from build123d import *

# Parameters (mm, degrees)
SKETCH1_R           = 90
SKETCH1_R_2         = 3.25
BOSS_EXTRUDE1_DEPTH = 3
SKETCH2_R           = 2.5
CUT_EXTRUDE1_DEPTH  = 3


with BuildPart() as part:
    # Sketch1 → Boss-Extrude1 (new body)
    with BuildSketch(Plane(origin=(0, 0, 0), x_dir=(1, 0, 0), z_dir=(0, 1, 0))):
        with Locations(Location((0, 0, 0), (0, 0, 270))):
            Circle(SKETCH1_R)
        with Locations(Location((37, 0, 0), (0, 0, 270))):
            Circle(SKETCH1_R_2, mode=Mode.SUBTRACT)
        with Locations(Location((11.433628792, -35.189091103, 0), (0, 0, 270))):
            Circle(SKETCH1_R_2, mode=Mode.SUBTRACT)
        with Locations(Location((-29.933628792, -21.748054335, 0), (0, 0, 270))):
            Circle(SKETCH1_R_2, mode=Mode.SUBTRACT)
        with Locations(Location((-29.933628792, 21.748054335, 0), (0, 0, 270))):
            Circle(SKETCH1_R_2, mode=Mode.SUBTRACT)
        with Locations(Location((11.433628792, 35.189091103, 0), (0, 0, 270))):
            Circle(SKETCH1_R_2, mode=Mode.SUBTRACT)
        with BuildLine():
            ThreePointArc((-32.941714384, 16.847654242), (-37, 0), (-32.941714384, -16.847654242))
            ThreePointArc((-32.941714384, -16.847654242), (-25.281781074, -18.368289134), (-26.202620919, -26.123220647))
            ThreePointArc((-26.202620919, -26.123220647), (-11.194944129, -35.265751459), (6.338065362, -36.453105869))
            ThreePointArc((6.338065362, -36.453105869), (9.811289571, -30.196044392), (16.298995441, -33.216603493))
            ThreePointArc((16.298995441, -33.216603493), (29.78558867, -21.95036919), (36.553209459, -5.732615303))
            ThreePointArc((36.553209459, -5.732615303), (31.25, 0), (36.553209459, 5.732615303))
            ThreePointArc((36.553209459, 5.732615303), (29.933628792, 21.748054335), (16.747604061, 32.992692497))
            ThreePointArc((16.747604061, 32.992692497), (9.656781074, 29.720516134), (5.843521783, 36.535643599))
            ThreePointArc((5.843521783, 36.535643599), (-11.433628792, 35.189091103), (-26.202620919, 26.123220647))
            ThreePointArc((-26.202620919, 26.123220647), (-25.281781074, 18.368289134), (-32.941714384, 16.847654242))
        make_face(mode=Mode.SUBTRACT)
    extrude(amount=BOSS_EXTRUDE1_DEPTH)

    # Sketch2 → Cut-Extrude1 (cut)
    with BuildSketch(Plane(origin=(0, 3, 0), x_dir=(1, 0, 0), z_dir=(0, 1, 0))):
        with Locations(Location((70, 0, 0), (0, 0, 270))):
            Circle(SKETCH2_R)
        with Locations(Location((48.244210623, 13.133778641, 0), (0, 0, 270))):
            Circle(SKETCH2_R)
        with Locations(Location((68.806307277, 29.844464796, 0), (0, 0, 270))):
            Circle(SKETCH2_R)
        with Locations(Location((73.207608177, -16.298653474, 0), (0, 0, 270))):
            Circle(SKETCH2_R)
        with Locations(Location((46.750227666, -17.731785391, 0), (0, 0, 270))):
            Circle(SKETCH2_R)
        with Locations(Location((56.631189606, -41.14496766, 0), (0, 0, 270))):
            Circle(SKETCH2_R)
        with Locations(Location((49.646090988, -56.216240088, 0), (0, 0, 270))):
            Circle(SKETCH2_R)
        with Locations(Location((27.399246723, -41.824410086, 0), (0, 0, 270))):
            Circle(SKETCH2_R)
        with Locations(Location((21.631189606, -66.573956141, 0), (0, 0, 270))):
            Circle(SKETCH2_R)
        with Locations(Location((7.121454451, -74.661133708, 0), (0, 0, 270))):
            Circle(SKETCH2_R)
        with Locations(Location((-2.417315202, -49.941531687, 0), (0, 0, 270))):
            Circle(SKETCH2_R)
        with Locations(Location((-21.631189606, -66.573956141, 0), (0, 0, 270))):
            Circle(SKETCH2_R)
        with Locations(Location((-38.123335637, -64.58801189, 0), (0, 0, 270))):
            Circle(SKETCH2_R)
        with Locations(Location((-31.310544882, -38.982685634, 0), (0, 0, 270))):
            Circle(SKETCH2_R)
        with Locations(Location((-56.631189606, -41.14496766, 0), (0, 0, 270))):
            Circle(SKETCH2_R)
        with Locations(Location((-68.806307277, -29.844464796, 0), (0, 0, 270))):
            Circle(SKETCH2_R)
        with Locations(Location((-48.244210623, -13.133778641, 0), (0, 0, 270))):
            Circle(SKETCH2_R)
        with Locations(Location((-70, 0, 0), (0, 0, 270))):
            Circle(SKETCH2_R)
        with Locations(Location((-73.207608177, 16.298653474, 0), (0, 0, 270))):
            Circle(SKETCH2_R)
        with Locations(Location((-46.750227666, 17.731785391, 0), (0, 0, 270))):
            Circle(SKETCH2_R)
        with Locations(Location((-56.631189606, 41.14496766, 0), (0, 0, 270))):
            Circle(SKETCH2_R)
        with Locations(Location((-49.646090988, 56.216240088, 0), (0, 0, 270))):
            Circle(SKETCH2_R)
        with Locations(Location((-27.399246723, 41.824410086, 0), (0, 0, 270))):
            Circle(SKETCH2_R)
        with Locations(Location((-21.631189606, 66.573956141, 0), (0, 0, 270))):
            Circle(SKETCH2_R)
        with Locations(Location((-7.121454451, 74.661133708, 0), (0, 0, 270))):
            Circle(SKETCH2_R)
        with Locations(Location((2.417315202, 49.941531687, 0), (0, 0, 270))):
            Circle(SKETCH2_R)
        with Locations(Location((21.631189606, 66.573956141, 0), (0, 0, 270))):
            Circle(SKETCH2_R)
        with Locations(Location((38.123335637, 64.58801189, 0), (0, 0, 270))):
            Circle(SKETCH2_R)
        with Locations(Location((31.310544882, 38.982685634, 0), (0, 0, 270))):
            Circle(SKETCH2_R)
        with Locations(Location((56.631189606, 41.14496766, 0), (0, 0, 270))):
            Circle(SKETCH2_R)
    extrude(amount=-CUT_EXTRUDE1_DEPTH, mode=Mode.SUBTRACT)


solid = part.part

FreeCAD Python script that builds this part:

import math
import FreeCAD as App
import Part
import Sketcher

V = App.Vector

doc = App.newDocument("Part")
params = doc.addObject("Spreadsheet::Sheet", "Params")
for row, (alias, value) in enumerate([
    ("sketch1_diameter", "180 mm"),
    ("sketch1_radius", "37 mm"),
    ("sketch1_diameter2", "6.5 mm"),
    ("sketch1_radius2", "5.75 mm"),
    ("sketch1_radius3", "5.25 mm"),
    ("pad1_length", "3 mm"),
    ("sketch2_diameter", "5 mm"),
    ("pocket1_length", "3 mm"),
], start=1):
    params.set(f"A{row}", alias)
    params.set(f"B{row}", "=" + value)
    params.setAlias(f"B{row}", alias)

body = doc.addObject("PartDesign::Body", "Body")

# Sketch on XZ plane
sketch1 = body.newObject("Sketcher::SketchObject", "Sketch")
sketch1.AttachmentSupport = (doc.getObject("XZ_Plane"), [""])
sketch1.MapMode = "FlatFace"
sketch1.addGeometry(Part.Circle(V(0, 0, 0), V(0, 0, 1), 90), False)
sketch1.addGeometry(Part.Circle(V(-29.9, -21.7, 0), V(0, 0, 1), 3.2), False)
sketch1.addGeometry(Part.Circle(V(-29.9, 21.7, 0), V(0, 0, 1), 3.2), False)
sketch1.addGeometry(Part.ArcOfCircle(Part.Circle(V(0, 0, 0), V(0, 0, 1), 37), math.radians(153), math.radians(207)), False)
sketch1.addGeometry(Part.ArcOfCircle(Part.Circle(V(-29.9, -21.7, 0), V(0, 0, 1), 5.8), math.radians(-50), math.radians(122)), False)
sketch1.addGeometry(Part.ArcOfCircle(Part.Circle(V(0, 0, 0), V(0, 0, 1), 37), math.radians(-135), math.radians(-81)), False)
sketch1.addGeometry(Part.ArcOfCircle(Part.Circle(V(11.4, -35.2, 0), V(0, 0, 1), 5.8), math.radians(22), math.radians(194)), False)
sketch1.addGeometry(Part.ArcOfCircle(Part.Circle(V(0, 0, 0), V(0, 0, 1), 37), math.radians(-63), math.radians(-9)), False)
sketch1.addGeometry(Part.ArcOfCircle(Part.Circle(V(37, 0, 0), V(0, 0, 1), 5.8), math.radians(94), math.radians(266)), False)
sketch1.addGeometry(Part.ArcOfCircle(Part.Circle(V(0, 0, 0), V(0, 0, 1), 37), math.radians(9), math.radians(64)), False)
sketch1.addGeometry(Part.ArcOfCircle(Part.Circle(V(11.4, 35.2, 0), V(0, 0, 1), 5.2), math.radians(166), math.radians(338)), False)
sketch1.addGeometry(Part.ArcOfCircle(Part.Circle(V(0, 0, 0), V(0, 0, 1), 37), math.radians(80), math.radians(135)), False)
sketch1.addGeometry(Part.ArcOfCircle(Part.Circle(V(-29.9, 21.7, 0), V(0, 0, 1), 5.8), math.radians(-122), math.radians(50)), False)
sketch1.addGeometry(Part.Circle(V(11.4, -35.2, 0), V(0, 0, 1), 3.2), False)
sketch1.addGeometry(Part.Circle(V(37, 0, 0), V(0, 0, 1), 3.2), False)
sketch1.addGeometry(Part.Circle(V(11.4, 35.2, 0), V(0, 0, 1), 3.2), False)
sketch1.addConstraint(Sketcher.Constraint("Coincident", 3, 2, 4, 2))
sketch1.addConstraint(Sketcher.Constraint("Coincident", 4, 1, 5, 1))
sketch1.addConstraint(Sketcher.Constraint("Coincident", 5, 2, 6, 2))
sketch1.addConstraint(Sketcher.Constraint("Coincident", 6, 1, 7, 1))
sketch1.addConstraint(Sketcher.Constraint("Coincident", 7, 2, 8, 2))
sketch1.addConstraint(Sketcher.Constraint("Coincident", 8, 1, 9, 1))
sketch1.addConstraint(Sketcher.Constraint("Coincident", 9, 2, 10, 2))
sketch1.addConstraint(Sketcher.Constraint("Coincident", 10, 1, 11, 1))
sketch1.addConstraint(Sketcher.Constraint("Coincident", 11, 2, 12, 2))
sketch1.addConstraint(Sketcher.Constraint("Coincident", 12, 1, 3, 1))
sketch1.addConstraint(Sketcher.Constraint("Coincident", 0, 3, -1, 1))
sketch1.addConstraint(Sketcher.Constraint("Coincident", 3, 3, -1, 1))
sketch1.addConstraint(Sketcher.Constraint("Coincident", 5, 3, -1, 1))
sketch1.addConstraint(Sketcher.Constraint("Coincident", 7, 3, -1, 1))
sketch1.addConstraint(Sketcher.Constraint("Coincident", 9, 3, -1, 1))
sketch1.addConstraint(Sketcher.Constraint("Coincident", 11, 3, -1, 1))
sketch1.addConstraint(Sketcher.Constraint("Coincident", 4, 3, 1, 3))
sketch1.addConstraint(Sketcher.Constraint("Coincident", 12, 3, 2, 3))
sketch1.addConstraint(Sketcher.Constraint("Coincident", 13, 3, 6, 3))
sketch1.addConstraint(Sketcher.Constraint("Coincident", 14, 3, 8, 3))
sketch1.addConstraint(Sketcher.Constraint("Coincident", 15, 3, 10, 3))
sketch1.addConstraint(Sketcher.Constraint("Equal", 1, 2))
sketch1.addConstraint(Sketcher.Constraint("Equal", 3, 5))
sketch1.addConstraint(Sketcher.Constraint("Equal", 4, 6))
sketch1.addConstraint(Sketcher.Constraint("Equal", 5, 7))
sketch1.addConstraint(Sketcher.Constraint("Equal", 6, 8))
sketch1.addConstraint(Sketcher.Constraint("Equal", 7, 9))
sketch1.addConstraint(Sketcher.Constraint("Equal", 9, 11))
sketch1.addConstraint(Sketcher.Constraint("Equal", 8, 12))
sketch1.addConstraint(Sketcher.Constraint("Equal", 2, 13))
sketch1.addConstraint(Sketcher.Constraint("Equal", 13, 14))
sketch1.addConstraint(Sketcher.Constraint("Equal", 14, 15))
sketch1.addConstraint(Sketcher.Constraint("Symmetric", 1, 3, 2, 3, -1))
sketch1.addConstraint(Sketcher.Constraint("Symmetric", 6, 3, 10, 3, -1))
sketch1.addConstraint(Sketcher.Constraint("PointOnObject", 8, 3, -1))
sketch1.addConstraint(Sketcher.Constraint("Diameter", 0, 180.0))
sketch1.addConstraint(Sketcher.Constraint("Radius", 3, 37.0))
sketch1.addConstraint(Sketcher.Constraint("Diameter", 1, 6.5))
sketch1.addConstraint(Sketcher.Constraint("Radius", 4, 5.75))
sketch1.addConstraint(Sketcher.Constraint("Radius", 10, 5.25))
sketch1.addConstraint(Sketcher.Constraint("DistanceX", -1, 1, 8, 3, 37.0))
sketch1.addConstraint(Sketcher.Constraint("DistanceY", 1, 3, 3, 2, 4.9004))
sketch1.addConstraint(Sketcher.Constraint("DistanceY", 6, 3, 6, 1, 2.196399))
sketch1.addConstraint(Sketcher.Constraint("DistanceX", 1, 3, -1, 1, 29.933629))
sketch1.addConstraint(Sketcher.Constraint("DistanceX", -1, 1, 6, 3, 11.433629))
sketch1.setExpression("Constraints[35]", "Params.sketch1_diameter")
sketch1.setExpression("Constraints[36]", "Params.sketch1_radius")
sketch1.setExpression("Constraints[37]", "Params.sketch1_diameter2")
sketch1.setExpression("Constraints[38]", "Params.sketch1_radius2")
sketch1.setExpression("Constraints[39]", "Params.sketch1_radius3")
pad1 = body.newObject("PartDesign::Pad", "Pad")
pad1.Profile = sketch1
pad1.setExpression("Length", "Params.pad1_length")
pad1.Reversed = True

# Sketch on XZ plane
sketch2 = body.newObject("Sketcher::SketchObject", "Sketch001")
sketch2.AttachmentSupport = (doc.getObject("XZ_Plane"), [""])
sketch2.MapMode = "FlatFace"
sketch2.AttachmentOffset = App.Placement(V(0, 0, -3), App.Rotation())
sketch2.addGeometry(Part.Circle(V(70, 0, 0), V(0, 0, 1), 2.5), False)
sketch2.addGeometry(Part.Circle(V(48.2, -13.1, 0), V(0, 0, 1), 2.5), False)
sketch2.addGeometry(Part.Circle(V(68.8, -29.8, 0), V(0, 0, 1), 2.5), False)
sketch2.addGeometry(Part.Circle(V(73.2, 16.3, 0), V(0, 0, 1), 2.5), False)
sketch2.addGeometry(Part.Circle(V(46.8, 17.7, 0), V(0, 0, 1), 2.5), False)
sketch2.addGeometry(Part.Circle(V(56.6, 41.1, 0), V(0, 0, 1), 2.5), False)
sketch2.addGeometry(Part.Circle(V(49.6, 56.2, 0), V(0, 0, 1), 2.5), False)
sketch2.addGeometry(Part.Circle(V(27.4, 41.8, 0), V(0, 0, 1), 2.5), False)
sketch2.addGeometry(Part.Circle(V(21.6, 66.6, 0), V(0, 0, 1), 2.5), False)
sketch2.addGeometry(Part.Circle(V(7.1, 74.7, 0), V(0, 0, 1), 2.5), False)
sketch2.addGeometry(Part.Circle(V(-2.4, 49.9, 0), V(0, 0, 1), 2.5), False)
sketch2.addGeometry(Part.Circle(V(-21.6, 66.6, 0), V(0, 0, 1), 2.5), False)
sketch2.addGeometry(Part.Circle(V(-38.1, 64.6, 0), V(0, 0, 1), 2.5), False)
sketch2.addGeometry(Part.Circle(V(-31.3, 39, 0), V(0, 0, 1), 2.5), False)
sketch2.addGeometry(Part.Circle(V(-56.6, 41.1, 0), V(0, 0, 1), 2.5), False)
sketch2.addGeometry(Part.Circle(V(-68.8, 29.8, 0), V(0, 0, 1), 2.5), False)
sketch2.addGeometry(Part.Circle(V(-48.2, 13.1, 0), V(0, 0, 1), 2.5), False)
sketch2.addGeometry(Part.Circle(V(-70, 0, 0), V(0, 0, 1), 2.5), False)
sketch2.addGeometry(Part.Circle(V(-73.2, -16.3, 0), V(0, 0, 1), 2.5), False)
sketch2.addGeometry(Part.Circle(V(-46.8, -17.7, 0), V(0, 0, 1), 2.5), False)
sketch2.addGeometry(Part.Circle(V(-56.6, -41.1, 0), V(0, 0, 1), 2.5), False)
sketch2.addGeometry(Part.Circle(V(-49.6, -56.2, 0), V(0, 0, 1), 2.5), False)
sketch2.addGeometry(Part.Circle(V(-27.4, -41.8, 0), V(0, 0, 1), 2.5), False)
sketch2.addGeometry(Part.Circle(V(-21.6, -66.6, 0), V(0, 0, 1), 2.5), False)
sketch2.addGeometry(Part.Circle(V(-7.1, -74.7, 0), V(0, 0, 1), 2.5), False)
sketch2.addGeometry(Part.Circle(V(2.4, -49.9, 0), V(0, 0, 1), 2.5), False)
sketch2.addGeometry(Part.Circle(V(21.6, -66.6, 0), V(0, 0, 1), 2.5), False)
sketch2.addGeometry(Part.Circle(V(38.1, -64.6, 0), V(0, 0, 1), 2.5), False)
sketch2.addGeometry(Part.Circle(V(31.3, -39, 0), V(0, 0, 1), 2.5), False)
sketch2.addGeometry(Part.Circle(V(56.6, -41.1, 0), V(0, 0, 1), 2.5), False)
sketch2.addConstraint(Sketcher.Constraint("Equal", 0, 1))
sketch2.addConstraint(Sketcher.Constraint("Equal", 1, 2))
sketch2.addConstraint(Sketcher.Constraint("Equal", 2, 3))
sketch2.addConstraint(Sketcher.Constraint("Equal", 3, 4))
sketch2.addConstraint(Sketcher.Constraint("Equal", 4, 5))
sketch2.addConstraint(Sketcher.Constraint("Equal", 5, 6))
sketch2.addConstraint(Sketcher.Constraint("Equal", 6, 7))
sketch2.addConstraint(Sketcher.Constraint("Equal", 7, 8))
sketch2.addConstraint(Sketcher.Constraint("Equal", 8, 9))
sketch2.addConstraint(Sketcher.Constraint("Equal", 9, 10))
sketch2.addConstraint(Sketcher.Constraint("Equal", 10, 11))
sketch2.addConstraint(Sketcher.Constraint("Equal", 11, 12))
sketch2.addConstraint(Sketcher.Constraint("Equal", 12, 13))
sketch2.addConstraint(Sketcher.Constraint("Equal", 13, 14))
sketch2.addConstraint(Sketcher.Constraint("Equal", 14, 15))
sketch2.addConstraint(Sketcher.Constraint("Equal", 15, 16))
sketch2.addConstraint(Sketcher.Constraint("Equal", 16, 17))
sketch2.addConstraint(Sketcher.Constraint("Equal", 17, 18))
sketch2.addConstraint(Sketcher.Constraint("Equal", 18, 19))
sketch2.addConstraint(Sketcher.Constraint("Equal", 19, 20))
sketch2.addConstraint(Sketcher.Constraint("Equal", 20, 21))
sketch2.addConstraint(Sketcher.Constraint("Equal", 21, 22))
sketch2.addConstraint(Sketcher.Constraint("Equal", 22, 23))
sketch2.addConstraint(Sketcher.Constraint("Equal", 23, 24))
sketch2.addConstraint(Sketcher.Constraint("Equal", 24, 25))
sketch2.addConstraint(Sketcher.Constraint("Equal", 25, 26))
sketch2.addConstraint(Sketcher.Constraint("Equal", 26, 27))
sketch2.addConstraint(Sketcher.Constraint("Equal", 27, 28))
sketch2.addConstraint(Sketcher.Constraint("Equal", 28, 29))
sketch2.addConstraint(Sketcher.Constraint("Symmetric", 2, 3, 15, 3, -1, 1))
sketch2.addConstraint(Sketcher.Constraint("Symmetric", 1, 3, 16, 3, -1, 1))
sketch2.addConstraint(Sketcher.Constraint("Symmetric", 0, 3, 17, 3, -1, 1))
sketch2.addConstraint(Sketcher.Constraint("Symmetric", 3, 3, 18, 3, -1, 1))
sketch2.addConstraint(Sketcher.Constraint("Symmetric", 4, 3, 19, 3, -1, 1))
sketch2.addConstraint(Sketcher.Constraint("Symmetric", 5, 3, 20, 3, -1, 1))
sketch2.addConstraint(Sketcher.Constraint("Symmetric", 6, 3, 21, 3, -1, 1))
sketch2.addConstraint(Sketcher.Constraint("Symmetric", 7, 3, 22, 3, -1, 1))
sketch2.addConstraint(Sketcher.Constraint("Symmetric", 8, 3, 23, 3, -1, 1))
sketch2.addConstraint(Sketcher.Constraint("Symmetric", 9, 3, 24, 3, -1, 1))
sketch2.addConstraint(Sketcher.Constraint("Symmetric", 10, 3, 25, 3, -1, 1))
sketch2.addConstraint(Sketcher.Constraint("Symmetric", 11, 3, 26, 3, -1, 1))
sketch2.addConstraint(Sketcher.Constraint("Symmetric", 12, 3, 27, 3, -1, 1))
sketch2.addConstraint(Sketcher.Constraint("Symmetric", 13, 3, 28, 3, -1, 1))
sketch2.addConstraint(Sketcher.Constraint("Symmetric", 14, 3, 29, 3, -1, 1))
sketch2.addConstraint(Sketcher.Constraint("Symmetric", 8, 3, 11, 3, -2))
sketch2.addConstraint(Sketcher.Constraint("Symmetric", 5, 3, 14, 3, -2))
sketch2.addConstraint(Sketcher.Constraint("PointOnObject", 0, 3, -1))
sketch2.addConstraint(Sketcher.Constraint("Diameter", 0, 5.0))
sketch2.addConstraint(Sketcher.Constraint("DistanceX", -1, 1, 0, 3, 70.0))
sketch2.addConstraint(Sketcher.Constraint("DistanceX", 8, 3, 5, 3, 35.0))
sketch2.addConstraint(Sketcher.Constraint("DistanceX", 13, 3, 9, 3, 38.431999))
sketch2.addConstraint(Sketcher.Constraint("DistanceX", 2, 3, 3, 3, 4.401301))
sketch2.addConstraint(Sketcher.Constraint("DistanceX", 6, 3, 5, 3, 6.985099))
sketch2.addConstraint(Sketcher.Constraint("DistanceY", 7, 3, 12, 3, 22.763602))
sketch2.addConstraint(Sketcher.Constraint("DistanceX", -1, 1, 1, 3, 48.244211))
sketch2.addConstraint(Sketcher.Constraint("DistanceY", 1, 3, -1, 1, 13.133779))
sketch2.addConstraint(Sketcher.Constraint("DistanceX", -1, 1, 3, 3, 73.207608))
sketch2.addConstraint(Sketcher.Constraint("DistanceX", -1, 1, 5, 3, 56.63119))
sketch2.addConstraint(Sketcher.Constraint("DistanceY", -1, 1, 6, 3, 56.21624))
sketch2.addConstraint(Sketcher.Constraint("DistanceY", -1, 1, 7, 3, 41.82441))
sketch2.addConstraint(Sketcher.Constraint("DistanceY", -1, 1, 10, 3, 49.941532))
sketch2.addConstraint(Sketcher.Constraint("DistanceY", 2, 3, 3, 3, 46.143118))
sketch2.addConstraint(Sketcher.Constraint("DistanceX", 4, 3, 3, 3, 26.457381))
sketch2.addConstraint(Sketcher.Constraint("DistanceY", 3, 3, 4, 3, 1.433132))
sketch2.addConstraint(Sketcher.Constraint("DistanceX", 7, 3, 4, 3, 19.350981))
sketch2.addConstraint(Sketcher.Constraint("DistanceY", 5, 3, 8, 3, 25.428988))
sketch2.addConstraint(Sketcher.Constraint("DistanceY", 4, 3, 8, 3, 48.842171))
sketch2.addConstraint(Sketcher.Constraint("DistanceY", 4, 3, 9, 3, 56.929348))
sketch2.addConstraint(Sketcher.Constraint("DistanceX", 10, 3, 9, 3, 9.53877))
sketch2.addConstraint(Sketcher.Constraint("DistanceX", 10, 3, 7, 3, 29.816562))
sketch2.addConstraint(Sketcher.Constraint("DistanceX", 12, 3, 10, 3, 35.70602))
sketch2.addConstraint(Sketcher.Constraint("DistanceY", 12, 3, 9, 3, 10.073122))
sketch2.addConstraint(Sketcher.Constraint("DistanceY", 13, 3, 11, 3, 27.591271))
sketch2.setExpression("Constraints[47]", "Params.sketch2_diameter")
pocket1 = body.newObject("PartDesign::Pocket", "Pocket")
pocket1.Profile = sketch2
pocket1.setExpression("Length", "Params.pocket1_length")
pocket1.Reversed = True

doc.recompute()
